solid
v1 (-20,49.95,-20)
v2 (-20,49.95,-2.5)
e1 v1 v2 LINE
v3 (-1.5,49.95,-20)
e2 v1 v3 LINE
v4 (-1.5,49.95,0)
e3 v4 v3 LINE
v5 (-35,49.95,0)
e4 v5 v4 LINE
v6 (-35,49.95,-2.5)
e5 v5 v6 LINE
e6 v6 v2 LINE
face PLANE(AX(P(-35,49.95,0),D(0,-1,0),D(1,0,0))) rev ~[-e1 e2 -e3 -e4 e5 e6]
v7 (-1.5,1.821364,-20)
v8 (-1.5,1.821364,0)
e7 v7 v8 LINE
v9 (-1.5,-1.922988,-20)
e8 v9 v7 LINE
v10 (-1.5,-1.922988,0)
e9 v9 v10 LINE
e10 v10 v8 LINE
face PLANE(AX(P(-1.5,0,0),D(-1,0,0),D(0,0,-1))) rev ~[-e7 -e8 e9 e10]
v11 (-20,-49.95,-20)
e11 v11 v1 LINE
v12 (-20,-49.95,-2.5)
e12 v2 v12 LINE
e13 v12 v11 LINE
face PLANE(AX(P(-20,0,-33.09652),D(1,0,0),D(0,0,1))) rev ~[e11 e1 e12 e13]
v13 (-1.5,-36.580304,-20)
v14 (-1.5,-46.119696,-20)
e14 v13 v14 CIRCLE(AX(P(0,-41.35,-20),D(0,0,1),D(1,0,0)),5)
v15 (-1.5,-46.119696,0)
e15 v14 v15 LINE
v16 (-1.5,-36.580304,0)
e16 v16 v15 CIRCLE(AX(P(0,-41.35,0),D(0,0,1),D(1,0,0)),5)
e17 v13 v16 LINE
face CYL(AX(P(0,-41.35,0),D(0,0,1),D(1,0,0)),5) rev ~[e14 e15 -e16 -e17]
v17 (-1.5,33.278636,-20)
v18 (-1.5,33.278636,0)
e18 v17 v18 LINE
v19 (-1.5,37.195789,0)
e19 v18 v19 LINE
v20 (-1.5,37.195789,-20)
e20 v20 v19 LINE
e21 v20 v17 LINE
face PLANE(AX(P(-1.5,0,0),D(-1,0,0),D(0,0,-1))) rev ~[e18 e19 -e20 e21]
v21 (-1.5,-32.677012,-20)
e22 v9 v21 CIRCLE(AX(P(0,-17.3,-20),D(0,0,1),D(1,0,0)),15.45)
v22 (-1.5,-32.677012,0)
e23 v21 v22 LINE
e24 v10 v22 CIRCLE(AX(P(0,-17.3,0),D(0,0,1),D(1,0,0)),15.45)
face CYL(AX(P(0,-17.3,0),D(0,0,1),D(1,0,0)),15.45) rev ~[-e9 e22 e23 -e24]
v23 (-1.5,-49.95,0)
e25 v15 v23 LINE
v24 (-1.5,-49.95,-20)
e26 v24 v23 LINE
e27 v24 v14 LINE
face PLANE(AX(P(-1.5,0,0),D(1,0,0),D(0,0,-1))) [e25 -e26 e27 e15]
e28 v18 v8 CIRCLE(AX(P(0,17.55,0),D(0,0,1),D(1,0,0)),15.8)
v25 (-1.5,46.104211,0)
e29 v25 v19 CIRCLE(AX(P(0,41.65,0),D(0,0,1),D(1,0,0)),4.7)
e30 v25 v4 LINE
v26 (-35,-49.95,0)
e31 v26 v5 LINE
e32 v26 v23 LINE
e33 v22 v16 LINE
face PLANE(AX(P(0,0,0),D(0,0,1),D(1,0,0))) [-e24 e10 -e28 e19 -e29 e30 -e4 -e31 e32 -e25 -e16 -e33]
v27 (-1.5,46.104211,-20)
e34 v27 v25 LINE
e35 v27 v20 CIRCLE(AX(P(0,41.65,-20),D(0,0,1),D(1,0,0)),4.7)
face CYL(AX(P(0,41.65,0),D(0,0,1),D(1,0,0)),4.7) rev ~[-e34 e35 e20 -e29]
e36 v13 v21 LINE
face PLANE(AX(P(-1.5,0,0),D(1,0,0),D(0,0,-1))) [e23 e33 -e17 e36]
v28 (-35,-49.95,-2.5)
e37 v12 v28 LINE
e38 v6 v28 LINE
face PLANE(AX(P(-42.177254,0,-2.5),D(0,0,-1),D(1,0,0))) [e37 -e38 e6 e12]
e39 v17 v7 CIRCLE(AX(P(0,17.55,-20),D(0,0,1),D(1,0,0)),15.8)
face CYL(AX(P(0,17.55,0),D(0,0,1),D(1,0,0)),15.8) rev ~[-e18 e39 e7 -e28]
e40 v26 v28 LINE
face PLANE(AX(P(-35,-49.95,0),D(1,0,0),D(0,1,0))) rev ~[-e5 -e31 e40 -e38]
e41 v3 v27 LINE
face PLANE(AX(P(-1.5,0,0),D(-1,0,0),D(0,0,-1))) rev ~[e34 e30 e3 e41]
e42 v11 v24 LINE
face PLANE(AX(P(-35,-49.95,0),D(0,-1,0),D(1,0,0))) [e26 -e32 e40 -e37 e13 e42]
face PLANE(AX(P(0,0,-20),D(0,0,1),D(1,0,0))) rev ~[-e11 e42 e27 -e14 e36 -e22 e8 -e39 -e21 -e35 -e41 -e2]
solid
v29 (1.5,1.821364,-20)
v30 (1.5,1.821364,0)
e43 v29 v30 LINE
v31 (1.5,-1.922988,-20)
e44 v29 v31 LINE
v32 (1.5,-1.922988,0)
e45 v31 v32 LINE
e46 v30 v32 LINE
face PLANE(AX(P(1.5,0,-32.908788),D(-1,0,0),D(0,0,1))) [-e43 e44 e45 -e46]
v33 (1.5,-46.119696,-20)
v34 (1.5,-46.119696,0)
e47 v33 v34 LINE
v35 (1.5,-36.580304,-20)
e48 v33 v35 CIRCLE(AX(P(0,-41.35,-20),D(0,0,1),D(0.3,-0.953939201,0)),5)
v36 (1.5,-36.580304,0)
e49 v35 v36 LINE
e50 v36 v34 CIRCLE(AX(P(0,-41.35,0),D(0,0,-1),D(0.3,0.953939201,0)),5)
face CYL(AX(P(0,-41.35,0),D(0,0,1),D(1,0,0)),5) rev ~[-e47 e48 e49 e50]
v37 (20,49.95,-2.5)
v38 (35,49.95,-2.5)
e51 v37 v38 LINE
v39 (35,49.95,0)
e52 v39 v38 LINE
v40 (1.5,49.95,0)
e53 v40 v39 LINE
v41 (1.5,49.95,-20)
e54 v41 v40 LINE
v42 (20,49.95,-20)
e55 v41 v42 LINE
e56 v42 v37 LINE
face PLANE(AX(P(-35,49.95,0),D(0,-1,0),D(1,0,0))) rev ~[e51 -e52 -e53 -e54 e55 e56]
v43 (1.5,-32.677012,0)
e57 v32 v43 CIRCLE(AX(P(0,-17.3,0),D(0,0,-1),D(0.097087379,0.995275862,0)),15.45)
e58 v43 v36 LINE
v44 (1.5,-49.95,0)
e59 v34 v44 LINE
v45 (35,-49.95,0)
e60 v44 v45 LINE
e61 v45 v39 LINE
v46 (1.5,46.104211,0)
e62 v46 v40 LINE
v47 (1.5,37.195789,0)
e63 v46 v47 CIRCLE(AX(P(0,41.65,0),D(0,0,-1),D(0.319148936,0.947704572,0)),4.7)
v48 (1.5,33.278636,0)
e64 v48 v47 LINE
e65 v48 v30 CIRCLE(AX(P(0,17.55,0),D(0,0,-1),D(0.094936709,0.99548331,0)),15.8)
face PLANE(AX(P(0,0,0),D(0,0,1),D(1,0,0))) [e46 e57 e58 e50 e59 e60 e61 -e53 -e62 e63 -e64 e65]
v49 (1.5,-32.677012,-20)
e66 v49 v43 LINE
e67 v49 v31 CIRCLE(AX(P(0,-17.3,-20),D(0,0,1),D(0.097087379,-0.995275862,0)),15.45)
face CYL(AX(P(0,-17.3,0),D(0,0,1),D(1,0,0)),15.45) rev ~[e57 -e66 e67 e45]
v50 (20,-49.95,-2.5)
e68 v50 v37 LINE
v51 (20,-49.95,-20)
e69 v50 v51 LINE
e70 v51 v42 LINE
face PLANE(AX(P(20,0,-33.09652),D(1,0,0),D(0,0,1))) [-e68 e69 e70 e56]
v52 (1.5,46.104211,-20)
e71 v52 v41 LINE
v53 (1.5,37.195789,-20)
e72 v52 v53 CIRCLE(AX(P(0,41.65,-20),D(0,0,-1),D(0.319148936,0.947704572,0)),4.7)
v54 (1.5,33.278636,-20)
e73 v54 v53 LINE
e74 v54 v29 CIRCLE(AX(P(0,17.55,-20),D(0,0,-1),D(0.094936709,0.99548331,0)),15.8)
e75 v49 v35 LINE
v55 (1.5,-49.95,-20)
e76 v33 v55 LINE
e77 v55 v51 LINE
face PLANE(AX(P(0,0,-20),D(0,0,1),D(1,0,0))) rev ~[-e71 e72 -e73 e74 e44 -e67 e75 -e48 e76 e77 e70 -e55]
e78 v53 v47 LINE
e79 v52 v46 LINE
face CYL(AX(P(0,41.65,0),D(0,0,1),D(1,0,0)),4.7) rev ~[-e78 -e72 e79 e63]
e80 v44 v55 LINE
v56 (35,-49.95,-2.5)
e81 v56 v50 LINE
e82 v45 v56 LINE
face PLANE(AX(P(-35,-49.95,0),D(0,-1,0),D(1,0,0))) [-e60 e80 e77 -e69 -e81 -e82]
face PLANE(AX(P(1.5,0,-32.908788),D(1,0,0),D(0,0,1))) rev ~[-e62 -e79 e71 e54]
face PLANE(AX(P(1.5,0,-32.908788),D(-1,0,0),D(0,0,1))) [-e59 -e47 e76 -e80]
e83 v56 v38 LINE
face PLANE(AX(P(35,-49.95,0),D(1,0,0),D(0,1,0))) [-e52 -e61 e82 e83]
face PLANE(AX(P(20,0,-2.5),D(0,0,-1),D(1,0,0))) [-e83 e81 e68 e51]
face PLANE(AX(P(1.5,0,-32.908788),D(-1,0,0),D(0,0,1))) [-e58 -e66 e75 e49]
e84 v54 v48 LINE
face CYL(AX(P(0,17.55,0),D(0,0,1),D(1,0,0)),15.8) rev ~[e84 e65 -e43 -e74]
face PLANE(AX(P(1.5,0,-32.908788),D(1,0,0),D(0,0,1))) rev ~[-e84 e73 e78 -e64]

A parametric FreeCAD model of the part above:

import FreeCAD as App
import Part
import Sketcher
from FreeCAD import Vector

doc = App.newDocument("Part")
params = doc.addObject("Spreadsheet::Sheet", "Params")
for row, (alias, value) in enumerate([
    ("sketch1_diameter", "10 mm"),
    ("sketch1_diameter2", "30.9 mm"),
    ("sketch1_diameter3", "31.6 mm"),
    ("sketch1_diameter4", "9.4 mm"),
    ("sketch1_width", "70 mm"),
    ("pad1_length", "20 mm"),
    ("sketch2_width", "3 mm"),
], start=1):
    params.set(f"A{row}", alias)
    params.set(f"B{row}", "=" + value)
    params.setAlias(f"B{row}", alias)

body = doc.addObject("PartDesign::Body", "Body")
body.AllowCompound = True

# Sketch on XY plane
sketch1 = body.newObject("Sketcher::SketchObject", "Sketch")
sketch1.AttachmentSupport = (doc.getObject("XY_Plane"), [""])
sketch1.MapMode = "FlatFace"
sketch1.addGeometry(Part.LineSegment(Vector(-35, 50, 0), Vector(-35, -50, 0)), False)
sketch1.addGeometry(Part.LineSegment(Vector(-35, -50, 0), Vector(35, -50, 0)), False)
sketch1.addGeometry(Part.LineSegment(Vector(35, -50, 0), Vector(35, 50, 0)), False)
sketch1.addGeometry(Part.LineSegment(Vector(35, 50, 0), Vector(-35, 50, 0)), False)
sketch1.addGeometry(Part.Circle(Vector(0, -41.4, 0), Vector(0, 0, 1), 5), False)
sketch1.addGeometry(Part.Circle(Vector(0, -17.3, 0), Vector(0, 0, 1), 15.4), False)
sketch1.addGeometry(Part.Circle(Vector(0, 17.6, 0), Vector(0, 0, 1), 15.8), False)
sketch1.addGeometry(Part.Circle(Vector(0, 41.6, 0), Vector(0, 0, 1), 4.7), False)
sketch1.addConstraint(Sketcher.Constraint("Coincident", 0, 2, 1, 1))
sketch1.addConstraint(Sketcher.Constraint("Coincident", 1, 2, 2, 1))
sketch1.addConstraint(Sketcher.Constraint("Coincident", 2, 2, 3, 1))
sketch1.addConstraint(Sketcher.Constraint("Coincident", 3, 2, 0, 1))
sketch1.addConstraint(Sketcher.Constraint("Vertical", 0))
sketch1.addConstraint(Sketcher.Constraint("Horizontal", 1))
sketch1.addConstraint(Sketcher.Constraint("Vertical", 2))
sketch1.addConstraint(Sketcher.Constraint("Horizontal", 3))
sketch1.addConstraint(Sketcher.Constraint("Symmetric", 0, 2, 2, 2, -1, 1))
sketch1.addConstraint(Sketcher.Constraint("PointOnObject", 4, 3, -2))
sketch1.addConstraint(Sketcher.Constraint("PointOnObject", 5, 3, -2))
sketch1.addConstraint(Sketcher.Constraint("PointOnObject", 6, 3, -2))
sketch1.addConstraint(Sketcher.Constraint("PointOnObject", 7, 3, -2))
sketch1.addConstraint(Sketcher.Constraint("Diameter", 4, 10.0))
sketch1.addConstraint(Sketcher.Constraint("Diameter", 5, 30.9))
sketch1.addConstraint(Sketcher.Constraint("Diameter", 6, 31.6))
sketch1.addConstraint(Sketcher.Constraint("Diameter", 7, 9.4))
sketch1.addConstraint(Sketcher.Constraint("DistanceX", 1, 1, 1, 2, 70.0))
sketch1.addConstraint(Sketcher.Constraint("DistanceY", 0, 2, 0, 1, 99.9))
sketch1.addConstraint(Sketcher.Constraint("DistanceY", 4, 3, 7, 3, 83.0))
sketch1.addConstraint(Sketcher.Constraint("DistanceY", 5, 3, -1, 1, 17.3))
sketch1.addConstraint(Sketcher.Constraint("DistanceY", 4, 3, 6, 3, 58.9))
sketch1.addConstraint(Sketcher.Constraint("DistanceY", 0, 2, 4, 3, 8.6))
sketch1.setExpression("Constraints[13]", "Params.sketch1_diameter")
sketch1.setExpression("Constraints[14]", "Params.sketch1_diameter2")
sketch1.setExpression("Constraints[15]", "Params.sketch1_diameter3")
sketch1.setExpression("Constraints[16]", "Params.sketch1_diameter4")
sketch1.setExpression("Constraints[17]", "Params.sketch1_width")
pad1 = body.newObject("PartDesign::Pad", "Pad")
pad1.Profile = sketch1
pad1.setExpression("Length", "Params.pad1_length")
pad1.Reversed = True

# Sketch on XZ plane
sketch2 = body.newObject("Sketcher::SketchObject", "Sketch001")
sketch2.AttachmentSupport = (doc.getObject("XZ_Plane"), [""])
sketch2.MapMode = "FlatFace"
sketch2.addGeometry(Part.LineSegment(Vector(1.5, 0, 0), Vector(-1.5, 0, 0)), False)
sketch2.addGeometry(Part.LineSegment(Vector(-1.5, 0, 0), Vector(-1.5, -32.9, 0)), False)
sketch2.addGeometry(Part.LineSegment(Vector(-1.5, -32.9, 0), Vector(1.5, -32.9, 0)), False)
sketch2.addGeometry(Part.LineSegment(Vector(1.5, -32.9, 0), Vector(1.5, 0, 0)), False)
sketch2.addGeometry(Part.LineSegment(Vector(20, -2.5, 0), Vector(20, -33.1, 0)), False)
sketch2.addGeometry(Part.LineSegment(Vector(20, -33.1, 0), Vector(42.2, -33.1, 0)), False)
sketch2.addGeometry(Part.LineSegment(Vector(42.2, -33.1, 0), Vector(42.2, -2.5, 0)), False)
sketch2.addGeometry(Part.LineSegment(Vector(42.2, -2.5, 0), Vector(20, -2.5, 0)), False)
sketch2.addGeometry(Part.LineSegment(Vector(-42.2, -2.5, 0), Vector(-42.2, -33.1, 0)), False)
sketch2.addGeometry(Part.LineSegment(Vector(-42.2, -33.1, 0), Vector(-20, -33.1, 0)), False)
sketch2.addGeometry(Part.LineSegment(Vector(-20, -33.1, 0), Vector(-20, -2.5, 0)), False)
sketch2.addGeometry(Part.LineSegment(Vector(-20, -2.5, 0), Vector(-42.2, -2.5, 0)), False)
sketch2.addConstraint(Sketcher.Constraint("Coincident", 0, 2, 1, 1))
sketch2.addConstraint(Sketcher.Constraint("Coincident", 1, 2, 2, 1))
sketch2.addConstraint(Sketcher.Constraint("Coincident", 2, 2, 3, 1))
sketch2.addConstraint(Sketcher.Constraint("Coincident", 3, 2, 0, 1))
sketch2.addConstraint(Sketcher.Constraint("Coincident", 4, 2, 5, 1))
sketch2.addConstraint(Sketcher.Constraint("Coincident", 5, 2, 6, 1))
sketch2.addConstraint(Sketcher.Constraint("Coincident", 6, 2, 7, 1))
sketch2.addConstraint(Sketcher.Constraint("Coincident", 7, 2, 4, 1))
sketch2.addConstraint(Sketcher.Constraint("Coincident", 8, 2, 9, 1))
sketch2.addConstraint(Sketcher.Constraint("Coincident", 9, 2, 10, 1))
sketch2.addConstraint(Sketcher.Constraint("Coincident", 10, 2, 11, 1))
sketch2.addConstraint(Sketcher.Constraint("Coincident", 11, 2, 8, 1))
sketch2.addConstraint(Sketcher.Constraint("Horizontal", 0))
sketch2.addConstraint(Sketcher.Constraint("Vertical", 1))
sketch2.addConstraint(Sketcher.Constraint("Horizontal", 2))
sketch2.addConstraint(Sketcher.Constraint("Vertical", 3))
sketch2.addConstraint(Sketcher.Constraint("Vertical", 4))
sketch2.addConstraint(Sketcher.Constraint("Horizontal", 5))
sketch2.addConstraint(Sketcher.Constraint("Vertical", 6))
sketch2.addConstraint(Sketcher.Constraint("Horizontal", 7))
sketch2.addConstraint(Sketcher.Constraint("Vertical", 8))
sketch2.addConstraint(Sketcher.Constraint("Horizontal", 9))
sketch2.addConstraint(Sketcher.Constraint("Vertical", 10))
sketch2.addConstraint(Sketcher.Constraint("Horizontal", 11))
sketch2.addConstraint(Sketcher.Constraint("Symmetric", 0, 2, 3, 2, -1, 1))
sketch2.addConstraint(Sketcher.Constraint("Symmetric", 5, 2, 8, 2, -2))
sketch2.addConstraint(Sketcher.Constraint("Symmetric", 7, 2, 10, 2, -2))
sketch2.addConstraint(Sketcher.Constraint("DistanceX", 0, 2, 0, 1, 3.0))
sketch2.addConstraint(Sketcher.Constraint("DistanceX", -1, 1, 4, 2, 20.0))
sketch2.addConstraint(Sketcher.Constraint("DistanceY", 6, 2, -1, 1, 2.5))
sketch2.addConstraint(Sketcher.Constraint("DistanceY", 4, 2, 4, 1, 30.59652))
sketch2.addConstraint(Sketcher.Constraint("DistanceX", 5, 1, 5, 2, 22.177255))
sketch2.addConstraint(Sketcher.Constraint("DistanceY", 1, 2, 1, 1, 32.908788))
sketch2.setExpression("Constraints[27]", "Params.sketch2_width")
pocket1 = body.newObject("PartDesign::Pocket", "Pocket")
pocket1.Profile = sketch2
pocket1.Type = "ThroughAll"
pocket1.Midplane = True

doc.recompute()
